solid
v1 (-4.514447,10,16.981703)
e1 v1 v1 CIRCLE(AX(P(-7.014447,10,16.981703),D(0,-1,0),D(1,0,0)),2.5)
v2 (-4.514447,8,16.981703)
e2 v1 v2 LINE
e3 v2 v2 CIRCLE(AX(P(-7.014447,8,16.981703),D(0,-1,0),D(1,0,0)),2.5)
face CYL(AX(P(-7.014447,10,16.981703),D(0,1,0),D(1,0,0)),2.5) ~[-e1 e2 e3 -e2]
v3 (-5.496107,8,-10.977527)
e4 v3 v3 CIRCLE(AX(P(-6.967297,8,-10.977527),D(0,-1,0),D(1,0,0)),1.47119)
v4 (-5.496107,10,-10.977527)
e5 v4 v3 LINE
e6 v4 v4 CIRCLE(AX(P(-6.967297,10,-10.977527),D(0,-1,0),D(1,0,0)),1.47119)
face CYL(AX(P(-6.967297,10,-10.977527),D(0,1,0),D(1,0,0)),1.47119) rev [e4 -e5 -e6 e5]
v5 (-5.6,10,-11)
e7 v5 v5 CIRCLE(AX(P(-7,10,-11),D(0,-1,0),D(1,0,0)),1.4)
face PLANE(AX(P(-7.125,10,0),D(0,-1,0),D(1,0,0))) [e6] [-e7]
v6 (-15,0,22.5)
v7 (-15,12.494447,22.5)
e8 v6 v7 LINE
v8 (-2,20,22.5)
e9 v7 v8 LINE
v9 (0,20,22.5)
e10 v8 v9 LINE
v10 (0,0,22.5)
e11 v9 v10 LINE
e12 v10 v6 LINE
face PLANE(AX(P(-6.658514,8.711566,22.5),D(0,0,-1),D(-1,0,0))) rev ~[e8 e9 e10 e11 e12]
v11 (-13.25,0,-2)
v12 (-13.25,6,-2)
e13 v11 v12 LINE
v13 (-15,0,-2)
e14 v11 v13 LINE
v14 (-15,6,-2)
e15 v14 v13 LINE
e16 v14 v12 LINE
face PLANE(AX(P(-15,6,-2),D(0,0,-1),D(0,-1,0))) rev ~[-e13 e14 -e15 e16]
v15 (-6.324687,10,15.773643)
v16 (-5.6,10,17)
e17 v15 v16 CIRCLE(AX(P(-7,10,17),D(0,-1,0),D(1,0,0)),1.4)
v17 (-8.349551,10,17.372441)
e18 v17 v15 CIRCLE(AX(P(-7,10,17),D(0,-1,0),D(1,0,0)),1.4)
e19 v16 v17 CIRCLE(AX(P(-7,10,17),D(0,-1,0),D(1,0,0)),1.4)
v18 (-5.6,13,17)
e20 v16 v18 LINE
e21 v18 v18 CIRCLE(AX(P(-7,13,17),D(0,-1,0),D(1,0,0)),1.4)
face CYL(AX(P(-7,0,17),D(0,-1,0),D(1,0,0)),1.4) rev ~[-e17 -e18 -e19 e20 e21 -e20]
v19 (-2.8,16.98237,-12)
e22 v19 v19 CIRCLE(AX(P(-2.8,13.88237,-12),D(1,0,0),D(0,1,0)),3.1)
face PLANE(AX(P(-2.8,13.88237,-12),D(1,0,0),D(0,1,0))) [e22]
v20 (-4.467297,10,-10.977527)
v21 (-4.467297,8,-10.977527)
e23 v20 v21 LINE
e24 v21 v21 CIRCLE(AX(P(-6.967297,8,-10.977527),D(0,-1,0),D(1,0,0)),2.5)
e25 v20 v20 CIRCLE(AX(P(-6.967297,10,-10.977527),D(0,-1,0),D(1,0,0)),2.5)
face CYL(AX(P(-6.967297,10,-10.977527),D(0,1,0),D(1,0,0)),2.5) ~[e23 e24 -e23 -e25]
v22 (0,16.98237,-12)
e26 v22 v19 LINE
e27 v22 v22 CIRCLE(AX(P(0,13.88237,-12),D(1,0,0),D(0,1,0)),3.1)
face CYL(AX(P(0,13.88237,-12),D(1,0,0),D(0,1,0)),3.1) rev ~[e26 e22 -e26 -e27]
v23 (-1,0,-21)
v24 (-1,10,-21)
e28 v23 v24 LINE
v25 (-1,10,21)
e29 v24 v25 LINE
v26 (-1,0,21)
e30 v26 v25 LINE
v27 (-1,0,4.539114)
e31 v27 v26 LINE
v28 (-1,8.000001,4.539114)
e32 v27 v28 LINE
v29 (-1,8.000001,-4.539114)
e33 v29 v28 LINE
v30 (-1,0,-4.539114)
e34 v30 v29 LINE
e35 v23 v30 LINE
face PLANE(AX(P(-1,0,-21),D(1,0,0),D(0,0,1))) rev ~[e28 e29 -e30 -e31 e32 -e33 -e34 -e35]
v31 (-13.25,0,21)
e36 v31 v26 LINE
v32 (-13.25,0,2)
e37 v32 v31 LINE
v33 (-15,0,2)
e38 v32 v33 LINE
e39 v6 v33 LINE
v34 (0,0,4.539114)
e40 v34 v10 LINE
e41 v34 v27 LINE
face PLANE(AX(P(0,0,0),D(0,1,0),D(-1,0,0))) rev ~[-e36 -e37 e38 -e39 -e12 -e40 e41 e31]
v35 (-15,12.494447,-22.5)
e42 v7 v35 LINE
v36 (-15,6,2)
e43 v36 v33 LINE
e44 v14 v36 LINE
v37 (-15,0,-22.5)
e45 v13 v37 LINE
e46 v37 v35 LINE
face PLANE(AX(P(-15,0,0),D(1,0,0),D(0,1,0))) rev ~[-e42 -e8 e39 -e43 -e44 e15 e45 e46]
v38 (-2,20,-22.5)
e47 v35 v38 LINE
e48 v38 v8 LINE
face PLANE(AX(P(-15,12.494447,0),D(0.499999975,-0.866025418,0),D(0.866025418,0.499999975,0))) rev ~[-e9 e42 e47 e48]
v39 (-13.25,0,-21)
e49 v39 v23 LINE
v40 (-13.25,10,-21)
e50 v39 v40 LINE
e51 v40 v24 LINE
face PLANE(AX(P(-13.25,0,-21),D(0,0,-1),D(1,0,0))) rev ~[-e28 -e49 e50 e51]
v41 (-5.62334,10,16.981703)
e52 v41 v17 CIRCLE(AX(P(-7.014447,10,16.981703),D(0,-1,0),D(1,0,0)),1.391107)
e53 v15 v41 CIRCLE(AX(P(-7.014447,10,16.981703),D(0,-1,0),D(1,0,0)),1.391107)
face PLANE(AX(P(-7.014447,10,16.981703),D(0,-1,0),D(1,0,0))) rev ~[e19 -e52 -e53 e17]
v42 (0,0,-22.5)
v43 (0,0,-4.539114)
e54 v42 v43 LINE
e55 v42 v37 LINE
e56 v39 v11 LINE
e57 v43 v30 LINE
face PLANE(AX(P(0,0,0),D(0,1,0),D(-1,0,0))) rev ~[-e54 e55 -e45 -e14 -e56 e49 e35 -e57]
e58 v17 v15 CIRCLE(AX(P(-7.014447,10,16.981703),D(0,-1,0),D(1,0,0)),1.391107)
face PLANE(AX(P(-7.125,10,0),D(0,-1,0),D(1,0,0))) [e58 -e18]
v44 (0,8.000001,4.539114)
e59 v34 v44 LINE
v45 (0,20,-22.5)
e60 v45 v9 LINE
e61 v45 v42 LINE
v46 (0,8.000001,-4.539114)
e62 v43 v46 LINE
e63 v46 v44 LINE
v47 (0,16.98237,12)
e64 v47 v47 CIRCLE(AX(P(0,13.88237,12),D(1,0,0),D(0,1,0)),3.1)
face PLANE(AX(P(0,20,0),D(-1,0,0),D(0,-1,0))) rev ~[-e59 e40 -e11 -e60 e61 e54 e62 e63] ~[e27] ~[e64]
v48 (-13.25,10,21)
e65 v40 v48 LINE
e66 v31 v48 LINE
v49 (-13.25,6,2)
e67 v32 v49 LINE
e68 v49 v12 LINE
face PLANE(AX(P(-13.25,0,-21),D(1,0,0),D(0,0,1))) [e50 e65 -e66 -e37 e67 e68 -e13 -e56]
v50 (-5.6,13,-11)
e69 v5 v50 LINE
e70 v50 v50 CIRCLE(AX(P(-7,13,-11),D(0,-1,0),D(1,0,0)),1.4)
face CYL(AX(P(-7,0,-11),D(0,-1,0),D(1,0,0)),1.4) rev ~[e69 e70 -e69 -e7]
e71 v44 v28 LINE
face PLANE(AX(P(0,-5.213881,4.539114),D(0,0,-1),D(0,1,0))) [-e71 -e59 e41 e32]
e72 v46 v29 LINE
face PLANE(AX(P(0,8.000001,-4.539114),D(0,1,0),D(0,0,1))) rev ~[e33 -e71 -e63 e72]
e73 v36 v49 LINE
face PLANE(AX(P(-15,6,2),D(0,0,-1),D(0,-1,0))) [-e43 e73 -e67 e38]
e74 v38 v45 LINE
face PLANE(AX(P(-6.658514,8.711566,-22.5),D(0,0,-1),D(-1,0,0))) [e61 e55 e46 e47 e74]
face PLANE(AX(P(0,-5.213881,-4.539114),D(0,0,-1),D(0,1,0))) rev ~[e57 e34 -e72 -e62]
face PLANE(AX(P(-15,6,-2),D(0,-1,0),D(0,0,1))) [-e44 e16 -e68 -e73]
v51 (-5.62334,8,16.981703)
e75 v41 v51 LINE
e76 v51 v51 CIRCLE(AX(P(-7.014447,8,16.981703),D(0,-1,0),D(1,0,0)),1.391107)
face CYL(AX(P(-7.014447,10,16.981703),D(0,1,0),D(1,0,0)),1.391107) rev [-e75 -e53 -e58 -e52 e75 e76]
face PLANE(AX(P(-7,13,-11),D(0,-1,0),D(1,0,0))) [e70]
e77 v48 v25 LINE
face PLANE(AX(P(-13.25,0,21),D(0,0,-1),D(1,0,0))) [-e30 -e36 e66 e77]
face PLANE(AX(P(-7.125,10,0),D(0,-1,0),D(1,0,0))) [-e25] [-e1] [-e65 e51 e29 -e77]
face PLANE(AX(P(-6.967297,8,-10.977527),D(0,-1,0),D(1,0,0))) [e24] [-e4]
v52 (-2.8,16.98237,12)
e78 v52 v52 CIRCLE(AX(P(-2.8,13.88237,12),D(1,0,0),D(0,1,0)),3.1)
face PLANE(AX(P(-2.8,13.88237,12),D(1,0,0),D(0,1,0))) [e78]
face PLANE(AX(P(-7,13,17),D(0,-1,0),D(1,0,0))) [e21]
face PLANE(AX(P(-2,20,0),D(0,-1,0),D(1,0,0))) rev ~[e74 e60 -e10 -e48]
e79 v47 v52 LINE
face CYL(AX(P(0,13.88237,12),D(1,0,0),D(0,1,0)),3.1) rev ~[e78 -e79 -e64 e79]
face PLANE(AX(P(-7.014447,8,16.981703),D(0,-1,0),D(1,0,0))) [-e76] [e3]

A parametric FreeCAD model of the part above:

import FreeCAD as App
import Part
import Sketcher
from FreeCAD import Vector
Q = App.Units.Quantity

doc = App.newDocument("Part")
body = doc.addObject("PartDesign::Body", "Body")

sketch1 = body.newObject("Sketcher::SketchObject", "Sketch")
sketch1.AttachmentSupport = (doc.getObject("XY_Plane"), [""])
sketch1.MapMode = "FlatFace"
sketch1.addGeometry([
    Part.LineSegment(Vector(-15, 0, 0), Vector(0, 0, 0)),
    Part.LineSegment(Vector(0, 0, 0), Vector(0, 20, 0)),
    Part.LineSegment(Vector(0, 20, 0), Vector(-2, 20, 0)),
    Part.LineSegment(Vector(-2, 20, 0), Vector(-15, 12.494447, 0)),
    Part.LineSegment(Vector(-15, 12.494447, 0), Vector(-15, 0, 0)),
], False)
sketch1.addConstraint([
    Sketcher.Constraint("Coincident", 0, 2, 1, 1),
    Sketcher.Constraint("Coincident", 1, 2, 2, 1),
    Sketcher.Constraint("Coincident", 2, 2, 3, 1),
    Sketcher.Constraint("Coincident", 3, 2, 4, 1),
    Sketcher.Constraint("Coincident", 4, 2, 0, 1),
    Sketcher.Constraint("Horizontal", 0),
    Sketcher.Constraint("Vertical", 1),
    Sketcher.Constraint("Horizontal", 2),
    Sketcher.Constraint("Vertical", 4),
    Sketcher.Constraint("Coincident", 0, 2, -1, 1),
    Sketcher.Constraint("DistanceX", 0, 1, 0, 2, Q("15 mm")),
    Sketcher.Constraint("DistanceX", 2, 2, 2, 1, Q("2 mm")),
    Sketcher.Constraint("DistanceY", 1, 1, 1, 2, Q("20 mm")),
    Sketcher.Constraint("Angle", 3, Q("-150.000002 deg")),
])
pad1 = body.newObject("PartDesign::Pad", "Pad")
pad1.Profile = sketch1
pad1.Length = 45
pad1.Midplane = True

sketch2 = body.newObject("Sketcher::SketchObject", "Sketch001")
sketch2.AttachmentSupport = (doc.getObject("XZ_Plane"), [""])
sketch2.MapMode = "FlatFace"
sketch2.addGeometry([
    Part.Circle(Vector(-7, 17, 0), Vector(0, 0, 1), 1.4),
    Part.Circle(Vector(-7, -11, 0), Vector(0, 0, 1), 1.4),
], False)
sketch2.addConstraint([
    Sketcher.Constraint("Equal", 0, 1),
    Sketcher.Constraint("Vertical", 0, 3, 1, 3),
    Sketcher.Constraint("Diameter", 0, Q("2.8 mm")),
    Sketcher.Constraint("DistanceX", 0, 3, -1, 1, Q("7 mm")),
    Sketcher.Constraint("DistanceY", -1, 1, 0, 3, Q("17 mm")),
    Sketcher.Constraint("DistanceY", 1, 3, -1, 1, Q("11 mm")),
])
pocket1 = body.newObject("PartDesign::Pocket", "Pocket")
pocket1.Profile = sketch2
pocket1.Length = 13

sketch3 = body.newObject("Sketcher::SketchObject", "Sketch002")
sketch3.AttachmentSupport = (doc.getObject("YZ_Plane"), [""])
sketch3.MapMode = "FlatFace"
sketch3.addGeometry([
    Part.Circle(Vector(13.88237, 12, 0), Vector(0, 0, 1), 3.1),
    Part.Circle(Vector(13.88237, -12, 0), Vector(0, 0, 1), 3.1),
], False)
sketch3.addConstraint([
    Sketcher.Constraint("Equal", 0, 1),
    Sketcher.Constraint("Symmetric", 0, 3, 1, 3, -1),
    Sketcher.Constraint("Diameter", 0, Q("6.2 mm")),
    Sketcher.Constraint("DistanceY", -1, 1, 0, 3, Q("12 mm")),
    Sketcher.Constraint("DistanceX", -1, 1, 0, 3, Q("13.88237 mm")),
])
pocket2 = body.newObject("PartDesign::Pocket", "Pocket001")
pocket2.Profile = sketch3
pocket2.Length = 2.8

sketch4 = body.newObject("Sketcher::SketchObject", "Sketch003")
sketch4.AttachmentSupport = (doc.getObject("XZ_Plane"), [""])
sketch4.MapMode = "FlatFace"
sketch4.addGeometry([
    Part.LineSegment(Vector(-13.25, 21, 0), Vector(-13.25, -21, 0)),
    Part.LineSegment(Vector(-13.25, -21, 0), Vector(-1, -21, 0)),
    Part.LineSegment(Vector(-1, -21, 0), Vector(-1, 21, 0)),
    Part.LineSegment(Vector(-1, 21, 0), Vector(-13.25, 21, 0)),
], False)
sketch4.addConstraint([
    Sketcher.Constraint("Coincident", 0, 2, 1, 1),
    Sketcher.Constraint("Coincident", 1, 2, 2, 1),
    Sketcher.Constraint("Coincident", 2, 2, 3, 1),
    Sketcher.Constraint("Coincident", 3, 2, 0, 1),
    Sketcher.Constraint("Vertical", 0),
    Sketcher.Constraint("Horizontal", 1),
    Sketcher.Constraint("Vertical", 2),
    Sketcher.Constraint("Horizontal", 3),
    Sketcher.Constraint("DistanceY", 0, 2, 0, 1, Q("42 mm")),
    Sketcher.Constraint("DistanceY", 0, 2, -1, 1, Q("21 mm")),
    Sketcher.Constraint("DistanceX", 1, 2, -1, 1, Q("1 mm")),
    Sketcher.Constraint("DistanceX", 1, 1, 1, 2, Q("12.25 mm")),
])
pocket3 = body.newObject("PartDesign::Pocket", "Pocket002")
pocket3.Profile = sketch4
pocket3.Length = 10

sketch5 = body.newObject("Sketcher::SketchObject", "Sketch004")
sketch5.AttachmentSupport = (doc.getObject("XZ_Plane"), [""])
sketch5.MapMode = "FlatFace"
sketch5.AttachmentOffset = App.Placement(Vector(0, 0, -10), App.Rotation())
sketch5.addGeometry([
    Part.Circle(Vector(-7.014447, 16.981703, 0), Vector(0, 0, 1), 2.5),
    Part.Circle(Vector(-7.014447, 16.981703, 0), Vector(0, 0, 1), 1.391107),
    Part.Circle(Vector(-6.967297, -10.977527, 0), Vector(0, 0, 1), 2.5),
    Part.Circle(Vector(-6.967297, -10.977527, 0), Vector(0, 0, 1), 1.47119),
], False)
sketch5.addConstraint([
    Sketcher.Constraint("Coincident", 1, 3, 0, 3),
    Sketcher.Constraint("Coincident", 3, 3, 2, 3),
    Sketcher.Constraint("Equal", 0, 2),
    Sketcher.Constraint("Diameter", 0, Q("5 mm")),
    Sketcher.Constraint("Diameter", 3, Q("2.94238 mm")),
    Sketcher.Constraint("Diameter", 1, Q("2.782214 mm")),
    Sketcher.Constraint("DistanceX", 0, 3, 2, 3, Q("0.04715 mm")),
    Sketcher.Constraint("DistanceY", 2, 3, 0, 3, Q("27.95923 mm")),
    Sketcher.Constraint("DistanceX", 0, 3, -1, 1, Q("7.014447 mm")),
    Sketcher.Constraint("DistanceY", -1, 1, 0, 3, Q("16.981703 mm")),
])
pad2 = body.newObject("PartDesign::Pad", "Pad001")
pad2.Profile = sketch5
pad2.Length = 2

sketch6 = body.newObject("Sketcher::SketchObject", "Sketch005")
sketch6.AttachmentSupport = (doc.getObject("YZ_Plane"), [""])
sketch6.MapMode = "FlatFace"
sketch6.AttachmentOffset = App.Placement(Vector(0, 0, -15), App.Rotation())
sketch6.addGeometry([
    Part.LineSegment(Vector(6, 2, 0), Vector(6, -2, 0)),
    Part.LineSegment(Vector(6, -2, 0), Vector(-6.042882, -2, 0)),
    Part.LineSegment(Vector(-6.042882, -2, 0), Vector(-6.042882, 2, 0)),
    Part.LineSegment(Vector(-6.042882, 2, 0), Vector(6, 2, 0)),
], False)
sketch6.addConstraint([
    Sketcher.Constraint("Coincident", 0, 2, 1, 1),
    Sketcher.Constraint("Coincident", 1, 2, 2, 1),
    Sketcher.Constraint("Coincident", 2, 2, 3, 1),
    Sketcher.Constraint("Coincident", 3, 2, 0, 1),
    Sketcher.Constraint("Vertical", 0),
    Sketcher.Constraint("Horizontal", 1),
    Sketcher.Constraint("Vertical", 2),
    Sketcher.Constraint("Horizontal", 3),
    Sketcher.Constraint("DistanceY", 0, 2, 0, 1, Q("4 mm")),
    Sketcher.Constraint("DistanceX", -1, 1, 0, 2, Q("6 mm")),
    Sketcher.Constraint("DistanceY", 0, 2, -1, 1, Q("2 mm")),
    Sketcher.Constraint("DistanceX", 1, 2, 1, 1, Q("12.042882 mm")),
])
pocket4 = body.newObject("PartDesign::Pocket", "Pocket003")
pocket4.Profile = sketch6
pocket4.Type = "ThroughAll"
pocket4.Reversed = True

sketch7 = body.newObject("Sketcher::SketchObject", "Sketch006")
sketch7.AttachmentSupport = (doc.getObject("YZ_Plane"), [""])
sketch7.MapMode = "FlatFace"
sketch7.addGeometry([
    Part.LineSegment(Vector(-5.213881, 4.539114, 0), Vector(-5.213881, -4.539114, 0)),
    Part.LineSegment(Vector(-5.213881, -4.539114, 0), Vector(8.000001, -4.539114, 0)),
    Part.LineSegment(Vector(8.000001, -4.539114, 0), Vector(8.000001, 4.539114, 0)),
    Part.LineSegment(Vector(8.000001, 4.539114, 0), Vector(-5.213881, 4.539114, 0)),
], False)
sketch7.addConstraint([
    Sketcher.Constraint("Coincident", 0, 2, 1, 1),
    Sketcher.Constraint("Coincident", 1, 2, 2, 1),
    Sketcher.Constraint("Coincident", 2, 2, 3, 1),
    Sketcher.Constraint("Coincident", 3, 2, 0, 1),
    Sketcher.Constraint("Vertical", 0),
    Sketcher.Constraint("Horizontal", 1),
    Sketcher.Constraint("Vertical", 2),
    Sketcher.Constraint("Horizontal", 3),
    Sketcher.Constraint("DistanceX", -1, 1, 1, 2, Q("8.000001 mm")),
    Sketcher.Constraint("DistanceX", 1, 1, 1, 2, Q("13.213881 mm")),
    Sketcher.Constraint("DistanceY", 0, 2, 0, 1, Q("9.078228 mm")),
    Sketcher.Constraint("DistanceY", 0, 2, -1, 1, Q("4.539114 mm")),
])
pocket5 = body.newObject("PartDesign::Pocket", "Pocket004")
pocket5.Profile = sketch7
pocket5.Length = 5

doc.recompute()
